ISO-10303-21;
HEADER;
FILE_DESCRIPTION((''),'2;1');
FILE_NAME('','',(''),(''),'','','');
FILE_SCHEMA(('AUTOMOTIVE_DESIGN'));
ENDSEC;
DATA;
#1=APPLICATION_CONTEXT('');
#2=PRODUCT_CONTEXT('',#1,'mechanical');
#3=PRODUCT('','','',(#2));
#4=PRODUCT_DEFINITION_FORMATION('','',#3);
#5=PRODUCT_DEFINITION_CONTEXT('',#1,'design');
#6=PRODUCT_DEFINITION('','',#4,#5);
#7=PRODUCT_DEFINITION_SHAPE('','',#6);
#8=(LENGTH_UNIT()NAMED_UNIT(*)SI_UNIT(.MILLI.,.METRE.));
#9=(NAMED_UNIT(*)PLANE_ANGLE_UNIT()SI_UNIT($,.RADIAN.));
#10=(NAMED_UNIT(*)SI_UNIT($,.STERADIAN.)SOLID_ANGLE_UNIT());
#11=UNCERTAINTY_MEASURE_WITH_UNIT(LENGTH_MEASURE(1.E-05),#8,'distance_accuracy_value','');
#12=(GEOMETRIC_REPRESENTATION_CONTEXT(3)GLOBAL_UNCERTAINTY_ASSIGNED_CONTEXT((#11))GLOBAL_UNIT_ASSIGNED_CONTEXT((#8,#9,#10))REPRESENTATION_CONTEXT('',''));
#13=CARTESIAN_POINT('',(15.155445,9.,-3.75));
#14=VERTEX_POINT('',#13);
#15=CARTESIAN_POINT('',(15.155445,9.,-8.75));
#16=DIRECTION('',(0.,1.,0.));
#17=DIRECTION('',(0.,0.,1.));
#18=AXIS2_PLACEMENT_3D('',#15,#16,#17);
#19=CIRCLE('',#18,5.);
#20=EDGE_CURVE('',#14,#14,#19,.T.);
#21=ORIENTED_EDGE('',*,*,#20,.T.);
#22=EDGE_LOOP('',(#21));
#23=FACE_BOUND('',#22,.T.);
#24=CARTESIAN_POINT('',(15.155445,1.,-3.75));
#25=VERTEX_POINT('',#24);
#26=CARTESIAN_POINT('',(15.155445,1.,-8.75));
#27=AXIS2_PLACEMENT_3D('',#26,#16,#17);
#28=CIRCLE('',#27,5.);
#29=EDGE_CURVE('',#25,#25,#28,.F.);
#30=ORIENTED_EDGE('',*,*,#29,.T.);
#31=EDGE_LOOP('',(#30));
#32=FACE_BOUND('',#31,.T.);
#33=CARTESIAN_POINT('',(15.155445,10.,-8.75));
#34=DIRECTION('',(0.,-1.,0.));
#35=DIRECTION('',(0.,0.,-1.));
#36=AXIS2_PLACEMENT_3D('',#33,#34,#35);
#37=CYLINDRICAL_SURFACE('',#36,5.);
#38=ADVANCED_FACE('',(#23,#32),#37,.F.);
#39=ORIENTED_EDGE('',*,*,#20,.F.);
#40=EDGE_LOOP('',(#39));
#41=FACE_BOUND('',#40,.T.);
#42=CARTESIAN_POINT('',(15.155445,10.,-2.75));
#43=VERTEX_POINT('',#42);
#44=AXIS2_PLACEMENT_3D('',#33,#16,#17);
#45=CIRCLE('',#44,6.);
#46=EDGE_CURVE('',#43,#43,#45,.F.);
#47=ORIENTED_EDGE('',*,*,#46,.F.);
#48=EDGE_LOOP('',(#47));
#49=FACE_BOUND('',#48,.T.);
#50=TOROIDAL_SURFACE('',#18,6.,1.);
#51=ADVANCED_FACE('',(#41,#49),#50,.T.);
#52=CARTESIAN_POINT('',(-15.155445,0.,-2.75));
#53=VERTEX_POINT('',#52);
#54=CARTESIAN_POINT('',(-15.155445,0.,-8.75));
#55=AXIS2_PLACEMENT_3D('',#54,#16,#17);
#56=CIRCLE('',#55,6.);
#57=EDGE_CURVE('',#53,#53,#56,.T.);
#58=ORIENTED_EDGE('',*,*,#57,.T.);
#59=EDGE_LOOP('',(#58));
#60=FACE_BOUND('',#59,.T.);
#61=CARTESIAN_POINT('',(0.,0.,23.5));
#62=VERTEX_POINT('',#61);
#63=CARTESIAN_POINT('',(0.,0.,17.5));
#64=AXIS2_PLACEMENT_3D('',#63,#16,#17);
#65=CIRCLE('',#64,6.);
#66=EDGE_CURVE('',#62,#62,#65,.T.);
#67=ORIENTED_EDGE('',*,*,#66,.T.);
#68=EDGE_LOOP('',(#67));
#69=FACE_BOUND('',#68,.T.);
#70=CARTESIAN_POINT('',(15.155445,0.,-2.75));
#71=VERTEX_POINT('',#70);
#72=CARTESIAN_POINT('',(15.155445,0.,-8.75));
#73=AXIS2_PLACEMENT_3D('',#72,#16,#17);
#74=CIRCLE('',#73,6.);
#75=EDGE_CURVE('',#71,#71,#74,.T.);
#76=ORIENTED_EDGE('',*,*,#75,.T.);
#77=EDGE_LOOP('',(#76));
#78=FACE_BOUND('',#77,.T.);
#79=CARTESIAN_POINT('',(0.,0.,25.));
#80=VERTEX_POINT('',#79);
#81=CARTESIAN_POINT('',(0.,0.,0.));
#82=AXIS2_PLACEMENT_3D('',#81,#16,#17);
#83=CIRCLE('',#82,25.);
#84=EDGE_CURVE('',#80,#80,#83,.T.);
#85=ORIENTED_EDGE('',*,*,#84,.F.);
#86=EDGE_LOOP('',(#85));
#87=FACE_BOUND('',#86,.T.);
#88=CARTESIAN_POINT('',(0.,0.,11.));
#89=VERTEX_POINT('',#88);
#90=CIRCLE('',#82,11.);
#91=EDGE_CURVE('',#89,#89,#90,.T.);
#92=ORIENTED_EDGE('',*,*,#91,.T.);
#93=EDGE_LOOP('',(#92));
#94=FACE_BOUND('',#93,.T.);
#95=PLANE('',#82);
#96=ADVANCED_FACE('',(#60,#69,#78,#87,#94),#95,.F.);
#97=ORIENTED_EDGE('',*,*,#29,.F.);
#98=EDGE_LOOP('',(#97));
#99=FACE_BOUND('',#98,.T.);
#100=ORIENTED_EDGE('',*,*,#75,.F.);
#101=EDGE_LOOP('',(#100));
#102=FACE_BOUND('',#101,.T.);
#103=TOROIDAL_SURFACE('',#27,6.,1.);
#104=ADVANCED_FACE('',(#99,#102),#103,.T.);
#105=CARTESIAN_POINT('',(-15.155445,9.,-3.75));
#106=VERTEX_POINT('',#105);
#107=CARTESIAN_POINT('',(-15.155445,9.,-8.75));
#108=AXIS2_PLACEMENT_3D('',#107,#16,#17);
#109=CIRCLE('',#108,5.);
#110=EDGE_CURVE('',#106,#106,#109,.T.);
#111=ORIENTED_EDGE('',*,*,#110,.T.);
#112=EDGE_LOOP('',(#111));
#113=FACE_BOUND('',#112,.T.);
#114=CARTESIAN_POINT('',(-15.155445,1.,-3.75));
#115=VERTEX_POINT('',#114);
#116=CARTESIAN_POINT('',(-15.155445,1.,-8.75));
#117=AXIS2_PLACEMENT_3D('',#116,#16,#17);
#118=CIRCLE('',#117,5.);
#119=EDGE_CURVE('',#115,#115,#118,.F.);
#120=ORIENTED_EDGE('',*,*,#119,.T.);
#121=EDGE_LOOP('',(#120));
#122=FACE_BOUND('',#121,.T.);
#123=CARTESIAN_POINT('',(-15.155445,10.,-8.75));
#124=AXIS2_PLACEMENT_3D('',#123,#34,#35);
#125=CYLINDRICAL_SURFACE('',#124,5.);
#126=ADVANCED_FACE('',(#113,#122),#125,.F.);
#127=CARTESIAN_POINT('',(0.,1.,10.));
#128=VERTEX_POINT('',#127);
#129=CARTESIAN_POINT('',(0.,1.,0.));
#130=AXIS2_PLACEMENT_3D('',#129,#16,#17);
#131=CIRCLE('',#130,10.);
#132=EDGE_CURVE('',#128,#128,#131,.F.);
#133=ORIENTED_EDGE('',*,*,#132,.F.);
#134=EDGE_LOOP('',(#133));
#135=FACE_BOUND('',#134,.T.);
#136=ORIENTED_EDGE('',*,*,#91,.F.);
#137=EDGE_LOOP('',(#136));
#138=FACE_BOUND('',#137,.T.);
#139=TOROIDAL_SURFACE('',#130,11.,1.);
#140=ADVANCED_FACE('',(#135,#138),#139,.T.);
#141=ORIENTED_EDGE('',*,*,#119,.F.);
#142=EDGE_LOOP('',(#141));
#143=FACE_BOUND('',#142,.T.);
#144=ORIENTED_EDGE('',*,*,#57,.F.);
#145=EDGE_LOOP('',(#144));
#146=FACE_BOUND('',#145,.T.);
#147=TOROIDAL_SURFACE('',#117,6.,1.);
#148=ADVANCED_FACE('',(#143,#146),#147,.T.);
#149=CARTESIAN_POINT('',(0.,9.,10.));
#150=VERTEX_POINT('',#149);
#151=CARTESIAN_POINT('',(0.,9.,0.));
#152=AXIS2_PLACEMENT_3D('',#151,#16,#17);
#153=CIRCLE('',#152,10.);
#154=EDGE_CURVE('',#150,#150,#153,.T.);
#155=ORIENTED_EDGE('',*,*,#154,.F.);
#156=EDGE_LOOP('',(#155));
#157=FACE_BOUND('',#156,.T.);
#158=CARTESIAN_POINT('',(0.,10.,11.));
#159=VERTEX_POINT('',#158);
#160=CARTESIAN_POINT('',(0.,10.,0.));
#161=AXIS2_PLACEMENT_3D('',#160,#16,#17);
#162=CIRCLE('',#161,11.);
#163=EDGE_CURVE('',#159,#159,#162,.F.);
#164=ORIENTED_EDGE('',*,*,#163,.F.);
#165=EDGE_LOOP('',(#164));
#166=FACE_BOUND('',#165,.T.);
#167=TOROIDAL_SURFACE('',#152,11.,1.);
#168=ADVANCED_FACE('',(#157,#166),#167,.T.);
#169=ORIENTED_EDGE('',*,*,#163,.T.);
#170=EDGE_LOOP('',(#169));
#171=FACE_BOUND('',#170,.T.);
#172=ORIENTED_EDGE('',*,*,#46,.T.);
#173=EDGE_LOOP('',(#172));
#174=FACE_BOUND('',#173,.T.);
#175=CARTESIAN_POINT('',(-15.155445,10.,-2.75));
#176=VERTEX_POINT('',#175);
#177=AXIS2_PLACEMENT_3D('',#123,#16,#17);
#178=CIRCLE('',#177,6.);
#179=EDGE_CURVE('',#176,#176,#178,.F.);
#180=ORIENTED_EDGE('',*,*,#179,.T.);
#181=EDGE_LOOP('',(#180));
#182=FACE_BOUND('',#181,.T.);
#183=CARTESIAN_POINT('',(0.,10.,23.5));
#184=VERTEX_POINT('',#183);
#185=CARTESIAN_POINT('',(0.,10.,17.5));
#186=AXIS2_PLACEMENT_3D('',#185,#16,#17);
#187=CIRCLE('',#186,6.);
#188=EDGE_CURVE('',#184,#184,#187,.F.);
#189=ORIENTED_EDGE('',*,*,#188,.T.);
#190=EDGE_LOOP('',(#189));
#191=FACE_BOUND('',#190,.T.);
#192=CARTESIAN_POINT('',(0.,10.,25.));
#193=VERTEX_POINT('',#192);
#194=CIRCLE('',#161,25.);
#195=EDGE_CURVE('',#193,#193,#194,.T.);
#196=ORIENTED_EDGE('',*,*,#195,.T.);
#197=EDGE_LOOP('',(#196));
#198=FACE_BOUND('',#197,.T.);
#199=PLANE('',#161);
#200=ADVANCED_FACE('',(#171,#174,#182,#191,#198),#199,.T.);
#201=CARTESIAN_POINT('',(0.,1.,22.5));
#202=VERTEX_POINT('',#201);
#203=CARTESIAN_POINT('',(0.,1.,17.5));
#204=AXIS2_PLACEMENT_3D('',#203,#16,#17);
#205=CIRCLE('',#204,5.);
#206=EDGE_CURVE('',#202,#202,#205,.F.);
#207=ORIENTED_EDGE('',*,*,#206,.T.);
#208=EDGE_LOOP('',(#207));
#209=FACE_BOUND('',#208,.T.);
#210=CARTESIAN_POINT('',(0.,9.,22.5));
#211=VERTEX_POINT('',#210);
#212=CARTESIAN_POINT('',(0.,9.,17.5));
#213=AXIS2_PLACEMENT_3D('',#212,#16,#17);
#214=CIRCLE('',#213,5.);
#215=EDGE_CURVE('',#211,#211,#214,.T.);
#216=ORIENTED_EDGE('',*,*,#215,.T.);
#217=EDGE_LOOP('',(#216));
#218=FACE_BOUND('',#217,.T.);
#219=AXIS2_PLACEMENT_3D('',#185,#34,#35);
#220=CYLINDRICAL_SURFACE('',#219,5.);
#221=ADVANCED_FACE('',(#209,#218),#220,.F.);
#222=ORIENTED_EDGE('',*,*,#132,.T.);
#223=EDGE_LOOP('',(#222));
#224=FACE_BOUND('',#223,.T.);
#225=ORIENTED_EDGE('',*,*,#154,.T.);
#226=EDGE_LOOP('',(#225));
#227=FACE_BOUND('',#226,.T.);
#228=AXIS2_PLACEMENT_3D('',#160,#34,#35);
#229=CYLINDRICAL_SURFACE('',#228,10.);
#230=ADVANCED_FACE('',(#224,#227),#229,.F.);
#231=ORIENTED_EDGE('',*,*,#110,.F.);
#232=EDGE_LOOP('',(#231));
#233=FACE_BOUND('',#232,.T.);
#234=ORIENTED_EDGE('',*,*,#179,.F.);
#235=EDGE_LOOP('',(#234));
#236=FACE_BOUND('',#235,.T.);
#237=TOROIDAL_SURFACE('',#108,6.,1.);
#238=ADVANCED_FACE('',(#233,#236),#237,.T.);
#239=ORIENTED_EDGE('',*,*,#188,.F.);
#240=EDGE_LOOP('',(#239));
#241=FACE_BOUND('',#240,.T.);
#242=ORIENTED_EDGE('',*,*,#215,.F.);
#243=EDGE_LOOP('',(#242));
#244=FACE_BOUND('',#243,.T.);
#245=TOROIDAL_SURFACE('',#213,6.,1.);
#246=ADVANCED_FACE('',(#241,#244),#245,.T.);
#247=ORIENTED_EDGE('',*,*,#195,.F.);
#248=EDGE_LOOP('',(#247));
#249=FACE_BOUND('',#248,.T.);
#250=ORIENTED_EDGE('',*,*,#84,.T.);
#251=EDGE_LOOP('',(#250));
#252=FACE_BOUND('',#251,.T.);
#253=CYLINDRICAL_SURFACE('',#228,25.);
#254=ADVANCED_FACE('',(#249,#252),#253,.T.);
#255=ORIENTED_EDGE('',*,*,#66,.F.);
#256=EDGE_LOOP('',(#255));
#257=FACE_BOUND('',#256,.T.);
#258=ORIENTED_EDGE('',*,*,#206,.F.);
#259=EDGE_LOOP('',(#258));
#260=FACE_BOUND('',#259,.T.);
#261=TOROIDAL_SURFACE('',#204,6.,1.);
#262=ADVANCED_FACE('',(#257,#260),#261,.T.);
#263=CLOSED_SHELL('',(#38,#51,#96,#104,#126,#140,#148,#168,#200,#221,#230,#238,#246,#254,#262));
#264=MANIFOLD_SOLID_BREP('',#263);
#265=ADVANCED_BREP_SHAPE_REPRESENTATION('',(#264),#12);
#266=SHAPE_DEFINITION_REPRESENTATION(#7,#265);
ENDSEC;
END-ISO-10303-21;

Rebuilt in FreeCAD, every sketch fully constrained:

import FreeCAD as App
import Part
import Sketcher
from FreeCAD import Vector


def edges_at(feature, points):
    """Names of the edges that pass closest to the given points."""
    edges = feature.Shape.Edges
    near = lambda p: min(range(len(edges)), key=lambda i: edges[i].distToShape(Part.Vertex(*p))[0])
    return sorted({f"Edge{near(p) + 1}" for p in points})

doc = App.newDocument("Part")
params = doc.addObject("Spreadsheet::Sheet", "Params")
for row, (alias, value) in enumerate([
    ("sketch1_diameter", "50 mm"),
    ("sketch1_diameter2", "20 mm"),
    ("pad1_length", "10 mm"),
    ("sketch2_diameter", "10 mm"),
    ("pocket1_length", "10 mm"),
    ("fillet_radius", "1 mm"),
], start=1):
    params.set(f"A{row}", alias)
    params.set(f"B{row}", "=" + value)
    params.setAlias(f"B{row}", alias)

body = doc.addObject("PartDesign::Body", "Body")

# Sketch on XZ plane
sketch1 = body.newObject("Sketcher::SketchObject", "Sketch")
sketch1.AttachmentSupport = (doc.getObject("XZ_Plane"), [""])
sketch1.MapMode = "FlatFace"
sketch1.addGeometry([
    Part.Circle(Vector(0, 0, 0), Vector(0, 0, 1), 25),
    Part.Circle(Vector(0, 0, 0), Vector(0, 0, 1), 10),
], False)
sketch1.addConstraint([
    Sketcher.Constraint("Coincident", 0, 3, -1, 1),
    Sketcher.Constraint("Coincident", 1, 3, -1, 1),
    Sketcher.Constraint("Diameter", 0, 50.0),
    Sketcher.Constraint("Diameter", 1, 20.0),
])
sketch1.setExpression("Constraints[2]", "Params.sketch1_diameter")
sketch1.setExpression("Constraints[3]", "Params.sketch1_diameter2")
pad1 = body.newObject("PartDesign::Pad", "Pad")
pad1.Profile = sketch1
pad1.setExpression("Length", "Params.pad1_length")
pad1.Reversed = True

# Sketch on XZ plane
sketch2 = body.newObject("Sketcher::SketchObject", "Sketch001")
sketch2.AttachmentSupport = (doc.getObject("XZ_Plane"), [""])
sketch2.MapMode = "FlatFace"
sketch2.addGeometry([
    Part.Circle(Vector(0, 18, 0), Vector(0, 0, 1), 5),
    Part.Circle(Vector(15, -9, 0), Vector(0, 0, 1), 5),
    Part.Circle(Vector(-15, -9, 0), Vector(0, 0, 1), 5),
], False)
sketch2.addConstraint([
    Sketcher.Constraint("Equal", 0, 1),
    Sketcher.Constraint("Equal", 1, 2),
    Sketcher.Constraint("Symmetric", 1, 3, 2, 3, -2),
    Sketcher.Constraint("PointOnObject", 0, 3, -2),
    Sketcher.Constraint("Diameter", 0, 10.0),
    Sketcher.Constraint("DistanceY", -1, 1, 0, 3, 17.5),
    Sketcher.Constraint("DistanceY", 1, 3, -1, 1, 8.75),
    Sketcher.Constraint("DistanceX", 2, 3, 1, 3, 30.310889),
])
sketch2.setExpression("Constraints[4]", "Params.sketch2_diameter")
pocket1 = body.newObject("PartDesign::Pocket", "Pocket")
pocket1.Profile = sketch2
pocket1.setExpression("Length", "Params.pocket1_length")
doc.recompute()

fillet = body.newObject("PartDesign::Fillet", "Fillet")
fillet.Base = (pocket1, edges_at(pocket1, [
    (0, 10, 22.5),
    (0, 0, 22.5),
    (15.155, 10, -3.75),
    (15.155, 0, -3.75),
    (-15.155, 10, -3.75),
    (-15.155, 0, -3.75),
    (0, 0, -10),
    (0, 10, -10),
]))
fillet.setExpression("Radius", "Params.fillet_radius")

doc.recompute()
